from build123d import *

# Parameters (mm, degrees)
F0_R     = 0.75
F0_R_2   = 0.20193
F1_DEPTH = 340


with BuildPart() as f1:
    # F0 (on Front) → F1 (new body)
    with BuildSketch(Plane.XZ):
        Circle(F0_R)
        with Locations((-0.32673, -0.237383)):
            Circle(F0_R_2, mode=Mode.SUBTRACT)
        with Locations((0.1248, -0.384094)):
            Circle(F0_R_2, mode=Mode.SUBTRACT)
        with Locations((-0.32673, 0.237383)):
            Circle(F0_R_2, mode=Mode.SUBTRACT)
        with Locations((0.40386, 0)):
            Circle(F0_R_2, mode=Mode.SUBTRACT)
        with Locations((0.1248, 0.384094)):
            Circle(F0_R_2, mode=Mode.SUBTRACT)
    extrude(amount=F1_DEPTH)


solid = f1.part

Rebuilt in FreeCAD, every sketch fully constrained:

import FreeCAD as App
import Part
import Sketcher

doc = App.newDocument("Part")
body = doc.addObject("PartDesign::Body", "Body")

sketch1 = body.newObject("Sketcher::SketchObject", "Sketch")
sketch1.AttachmentSupport = (doc.getObject("XZ_Plane"), [""])
sketch1.MapMode = "FlatFace"
sketch1.addGeometry([
    Part.Circle(App.Vector(0, 0, 0), App.Vector(0, 0, 1), 0.75),
    Part.Circle(App.Vector(-0.33, -0.24, 0), App.Vector(0, 0, 1), 0.2),
    Part.Circle(App.Vector(0.12, -0.38, 0), App.Vector(0, 0, 1), 0.2),
    Part.Circle(App.Vector(-0.33, 0.24, 0), App.Vector(0, 0, 1), 0.2),
    Part.Circle(App.Vector(0.4, 0, 0), App.Vector(0, 0, 1), 0.2),
    Part.Circle(App.Vector(0.12, 0.38, 0), App.Vector(0, 0, 1), 0.2),
], False)
sketch1.addConstraint([
    Sketcher.Constraint("Coincident", 0, 3, -1, 1),
    Sketcher.Constraint("Equal", 1, 2),
    Sketcher.Constraint("Equal", 2, 3),
    Sketcher.Constraint("Equal", 3, 4),
    Sketcher.Constraint("Equal", 4, 5),
    Sketcher.Constraint("Symmetric", 1, 3, 3, 3, -1),
    Sketcher.Constraint("Symmetric", 2, 3, 5, 3, -1),
    Sketcher.Constraint("PointOnObject", 4, 3, -1),
    Sketcher.Constraint("Diameter", 0, 1.5),
    Sketcher.Constraint("Diameter", 1, 0.40386),
    Sketcher.Constraint("DistanceX", -1, 1, 2, 3, 0.1248),
    Sketcher.Constraint("DistanceX", 1, 3, -1, 1, 0.32673),
    Sketcher.Constraint("DistanceX", -1, 1, 4, 3, 0.40386),
    Sketcher.Constraint("DistanceY", 2, 3, 1, 3, 0.146711),
    Sketcher.Constraint("DistanceY", 1, 3, -1, 1, 0.237383),
])
pad1 = body.newObject("PartDesign::Pad", "Pad")
pad1.Profile = sketch1
pad1.Length = 340

doc.recompute()
